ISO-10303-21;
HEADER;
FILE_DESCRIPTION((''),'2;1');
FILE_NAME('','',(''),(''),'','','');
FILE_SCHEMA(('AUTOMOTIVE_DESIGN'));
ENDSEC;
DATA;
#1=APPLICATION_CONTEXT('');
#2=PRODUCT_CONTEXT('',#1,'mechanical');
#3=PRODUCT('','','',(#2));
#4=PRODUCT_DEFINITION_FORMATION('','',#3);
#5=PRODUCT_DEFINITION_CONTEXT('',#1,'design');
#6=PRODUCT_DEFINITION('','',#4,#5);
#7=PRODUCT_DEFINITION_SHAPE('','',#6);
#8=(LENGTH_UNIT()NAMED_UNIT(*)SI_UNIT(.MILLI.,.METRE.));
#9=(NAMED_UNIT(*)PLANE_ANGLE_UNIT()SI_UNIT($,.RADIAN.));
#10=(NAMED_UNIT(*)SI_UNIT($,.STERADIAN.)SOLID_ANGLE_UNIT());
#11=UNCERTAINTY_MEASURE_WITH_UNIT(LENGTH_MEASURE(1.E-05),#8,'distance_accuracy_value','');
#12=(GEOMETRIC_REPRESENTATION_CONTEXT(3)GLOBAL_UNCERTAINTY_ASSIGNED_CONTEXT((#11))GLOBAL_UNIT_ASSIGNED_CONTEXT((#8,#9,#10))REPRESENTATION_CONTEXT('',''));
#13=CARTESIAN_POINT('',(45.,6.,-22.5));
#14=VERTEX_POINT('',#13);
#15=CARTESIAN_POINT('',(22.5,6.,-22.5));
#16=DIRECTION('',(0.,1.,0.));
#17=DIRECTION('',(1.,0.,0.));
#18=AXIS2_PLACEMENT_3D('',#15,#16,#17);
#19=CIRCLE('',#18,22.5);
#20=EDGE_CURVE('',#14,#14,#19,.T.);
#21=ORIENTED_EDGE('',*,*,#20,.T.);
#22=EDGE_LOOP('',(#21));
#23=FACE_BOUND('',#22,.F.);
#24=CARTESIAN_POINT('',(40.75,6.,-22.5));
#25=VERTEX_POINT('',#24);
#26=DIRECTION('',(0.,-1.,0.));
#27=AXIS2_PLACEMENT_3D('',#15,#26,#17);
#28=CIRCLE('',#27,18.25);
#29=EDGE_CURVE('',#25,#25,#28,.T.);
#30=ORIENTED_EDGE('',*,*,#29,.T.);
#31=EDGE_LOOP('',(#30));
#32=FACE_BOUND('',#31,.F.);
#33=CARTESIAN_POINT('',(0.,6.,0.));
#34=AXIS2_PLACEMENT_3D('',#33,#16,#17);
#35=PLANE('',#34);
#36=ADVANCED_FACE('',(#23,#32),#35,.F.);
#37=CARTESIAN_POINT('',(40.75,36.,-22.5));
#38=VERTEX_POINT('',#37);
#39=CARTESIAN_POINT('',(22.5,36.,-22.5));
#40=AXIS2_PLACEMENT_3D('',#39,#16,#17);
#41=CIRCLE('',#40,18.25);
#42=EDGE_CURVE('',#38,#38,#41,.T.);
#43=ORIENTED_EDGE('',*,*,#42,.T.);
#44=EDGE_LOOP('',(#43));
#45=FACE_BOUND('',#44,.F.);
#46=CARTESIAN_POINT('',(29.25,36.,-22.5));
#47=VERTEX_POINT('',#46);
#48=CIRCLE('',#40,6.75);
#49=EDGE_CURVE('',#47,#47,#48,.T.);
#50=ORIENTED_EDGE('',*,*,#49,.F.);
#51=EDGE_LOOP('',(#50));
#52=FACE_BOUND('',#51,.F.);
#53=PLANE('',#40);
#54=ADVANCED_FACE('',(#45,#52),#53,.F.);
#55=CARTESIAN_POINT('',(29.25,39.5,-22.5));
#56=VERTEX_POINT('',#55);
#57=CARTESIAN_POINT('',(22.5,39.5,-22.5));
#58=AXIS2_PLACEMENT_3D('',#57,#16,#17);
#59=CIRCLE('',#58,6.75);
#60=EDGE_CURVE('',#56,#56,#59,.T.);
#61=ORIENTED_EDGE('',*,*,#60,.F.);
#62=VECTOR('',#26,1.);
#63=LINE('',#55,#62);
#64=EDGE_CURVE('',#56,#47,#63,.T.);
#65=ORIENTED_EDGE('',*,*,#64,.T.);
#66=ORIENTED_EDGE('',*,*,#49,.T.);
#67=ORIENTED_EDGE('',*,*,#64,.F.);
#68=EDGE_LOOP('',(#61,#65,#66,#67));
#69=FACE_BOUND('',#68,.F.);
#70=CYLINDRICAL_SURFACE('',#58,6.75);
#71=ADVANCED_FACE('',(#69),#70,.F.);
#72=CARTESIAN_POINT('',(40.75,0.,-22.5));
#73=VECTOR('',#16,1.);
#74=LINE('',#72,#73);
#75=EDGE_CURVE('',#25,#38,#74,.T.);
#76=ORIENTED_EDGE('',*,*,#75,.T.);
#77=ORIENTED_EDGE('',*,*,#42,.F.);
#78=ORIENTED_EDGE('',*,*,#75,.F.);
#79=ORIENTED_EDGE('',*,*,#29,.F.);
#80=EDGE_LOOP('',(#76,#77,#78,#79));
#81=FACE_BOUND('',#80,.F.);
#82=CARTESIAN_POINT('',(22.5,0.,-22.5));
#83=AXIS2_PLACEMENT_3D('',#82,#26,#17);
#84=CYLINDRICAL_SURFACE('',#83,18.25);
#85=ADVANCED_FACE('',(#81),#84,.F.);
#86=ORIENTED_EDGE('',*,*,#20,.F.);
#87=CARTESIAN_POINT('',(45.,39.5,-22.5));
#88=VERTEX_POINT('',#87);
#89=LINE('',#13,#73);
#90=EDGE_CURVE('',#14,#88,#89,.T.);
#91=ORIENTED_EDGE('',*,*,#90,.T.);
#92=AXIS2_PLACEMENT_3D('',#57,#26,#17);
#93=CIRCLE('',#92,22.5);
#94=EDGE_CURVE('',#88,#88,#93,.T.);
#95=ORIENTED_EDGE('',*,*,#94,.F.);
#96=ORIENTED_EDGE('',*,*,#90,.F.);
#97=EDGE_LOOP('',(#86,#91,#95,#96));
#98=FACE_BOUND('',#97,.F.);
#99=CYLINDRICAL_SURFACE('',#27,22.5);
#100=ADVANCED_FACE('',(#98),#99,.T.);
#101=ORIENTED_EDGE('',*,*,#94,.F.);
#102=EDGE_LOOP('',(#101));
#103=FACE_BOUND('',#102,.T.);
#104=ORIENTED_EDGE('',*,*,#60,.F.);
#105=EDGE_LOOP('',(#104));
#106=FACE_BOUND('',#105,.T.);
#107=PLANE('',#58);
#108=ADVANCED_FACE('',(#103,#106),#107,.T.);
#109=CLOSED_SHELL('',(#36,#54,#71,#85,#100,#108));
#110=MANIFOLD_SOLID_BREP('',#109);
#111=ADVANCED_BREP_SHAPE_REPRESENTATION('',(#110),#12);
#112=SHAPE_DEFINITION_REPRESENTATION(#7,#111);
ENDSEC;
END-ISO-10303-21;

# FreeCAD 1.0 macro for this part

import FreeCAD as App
import Part
import Sketcher
from FreeCAD import Vector

doc = App.newDocument("Part")
body = doc.addObject("PartDesign::Body", "Body")

# Sketch on XZ plane
sketch1 = doc.addObject("Sketcher::SketchObject", "Sketch")
body.addObject(sketch1)
sketch1.AttachmentSupport = (doc.XZ_Plane, [""])
sketch1.MapMode = "FlatFace"
sketch1.AttachmentOffset = App.Placement(Vector(0, 0, -6), App.Rotation())
sketch1.addGeometry(Part.Circle(Vector(22.5, -22.5, 0), Vector(0, 0, 1), 22.5), False)
sketch1.addConstraint([
    Sketcher.Constraint("Diameter", 0, 45.0),
    Sketcher.Constraint("DistanceX", -1, 1, 0, 3, 22.5),
    Sketcher.Constraint("DistanceY", 0, 3, -1, 1, 22.5),
])
pad1 = doc.addObject("PartDesign::Pad", "Pad")
body.addObject(pad1)
pad1.Profile = sketch1
pad1.Length = 33.5
pad1.Reversed = True

# Sketch on XZ plane
sketch2 = doc.addObject("Sketcher::SketchObject", "Sketch001")
body.addObject(sketch2)
sketch2.AttachmentSupport = (doc.XZ_Plane, [""])
sketch2.MapMode = "FlatFace"
sketch2.addGeometry(Part.Circle(Vector(22.5, -22.5, 0), Vector(0, 0, 1), 18.25), False)
sketch2.addConstraint([
    Sketcher.Constraint("Diameter", 0, 36.5),
    Sketcher.Constraint("DistanceX", -1, 1, 0, 3, 22.5),
    Sketcher.Constraint("DistanceY", 0, 3, -1, 1, 22.5),
])
pocket1 = doc.addObject("PartDesign::Pocket", "Pocket")
body.addObject(pocket1)
pocket1.Profile = sketch2
pocket1.Length = 65

# Sketch on XZ plane
sketch3 = doc.addObject("Sketcher::SketchObject", "Sketch002")
body.addObject(sketch3)
sketch3.AttachmentSupport = (doc.XZ_Plane, [""])
sketch3.MapMode = "FlatFace"
sketch3.AttachmentOffset = App.Placement(Vector(0, 0, -39.5), App.Rotation())
sketch3.addGeometry(Part.Circle(Vector(22.5, -22.5, 0), Vector(0, 0, 1), 6.75), False)
sketch3.addConstraint([
    Sketcher.Constraint("Diameter", 0, 13.5),
    Sketcher.Constraint("DistanceX", -1, 1, 0, 3, 22.5),
    Sketcher.Constraint("DistanceY", 0, 3, -1, 1, 22.5),
])
pocket2 = doc.addObject("PartDesign::Pocket", "Pocket001")
body.addObject(pocket2)
pocket2.Profile = sketch3
pocket2.Length = 4.5
pocket2.Reversed = True

# Sketch on XZ plane
sketch4 = doc.addObject("Sketcher::SketchObject", "Sketch003")
body.addObject(sketch4)
sketch4.AttachmentSupport = (doc.XZ_Plane, [""])
sketch4.MapMode = "FlatFace"
sketch4.AttachmentOffset = App.Placement(Vector(0, 0, -39.5), App.Rotation())
sketch4.addGeometry(Part.Circle(Vector(22.5, -22.5, 0), Vector(0, 0, 1), 18.25), False)
sketch4.addConstraint([
    Sketcher.Constraint("Diameter", 0, 36.5),
    Sketcher.Constraint("DistanceX", -1, 1, 0, 3, 22.5),
    Sketcher.Constraint("DistanceY", 0, 3, -1, 1, 22.5),
])
pad2 = doc.addObject("PartDesign::Pad", "Pad001")
body.addObject(pad2)
pad2.Profile = sketch4
pad2.Length = 3.5

# Sketch on XZ plane
sketch5 = doc.addObject("Sketcher::SketchObject", "Sketch004")
body.addObject(sketch5)
sketch5.AttachmentSupport = (doc.XZ_Plane, [""])
sketch5.MapMode = "FlatFace"
sketch5.AttachmentOffset = App.Placement(Vector(0, 0, -39.5), App.Rotation())
sketch5.addGeometry(Part.Circle(Vector(22.5, -22.5, 0), Vector(0, 0, 1), 6.75), False)
sketch5.addConstraint([
    Sketcher.Constraint("Diameter", 0, 13.5),
    Sketcher.Constraint("DistanceX", -1, 1, 0, 3, 22.5),
    Sketcher.Constraint("DistanceY", 0, 3, -1, 1, 22.5),
])
pocket3 = doc.addObject("PartDesign::Pocket", "Pocket002")
body.addObject(pocket3)
pocket3.Profile = sketch5
pocket3.Length = 3.5
pocket3.Reversed = True

doc.recompute()
